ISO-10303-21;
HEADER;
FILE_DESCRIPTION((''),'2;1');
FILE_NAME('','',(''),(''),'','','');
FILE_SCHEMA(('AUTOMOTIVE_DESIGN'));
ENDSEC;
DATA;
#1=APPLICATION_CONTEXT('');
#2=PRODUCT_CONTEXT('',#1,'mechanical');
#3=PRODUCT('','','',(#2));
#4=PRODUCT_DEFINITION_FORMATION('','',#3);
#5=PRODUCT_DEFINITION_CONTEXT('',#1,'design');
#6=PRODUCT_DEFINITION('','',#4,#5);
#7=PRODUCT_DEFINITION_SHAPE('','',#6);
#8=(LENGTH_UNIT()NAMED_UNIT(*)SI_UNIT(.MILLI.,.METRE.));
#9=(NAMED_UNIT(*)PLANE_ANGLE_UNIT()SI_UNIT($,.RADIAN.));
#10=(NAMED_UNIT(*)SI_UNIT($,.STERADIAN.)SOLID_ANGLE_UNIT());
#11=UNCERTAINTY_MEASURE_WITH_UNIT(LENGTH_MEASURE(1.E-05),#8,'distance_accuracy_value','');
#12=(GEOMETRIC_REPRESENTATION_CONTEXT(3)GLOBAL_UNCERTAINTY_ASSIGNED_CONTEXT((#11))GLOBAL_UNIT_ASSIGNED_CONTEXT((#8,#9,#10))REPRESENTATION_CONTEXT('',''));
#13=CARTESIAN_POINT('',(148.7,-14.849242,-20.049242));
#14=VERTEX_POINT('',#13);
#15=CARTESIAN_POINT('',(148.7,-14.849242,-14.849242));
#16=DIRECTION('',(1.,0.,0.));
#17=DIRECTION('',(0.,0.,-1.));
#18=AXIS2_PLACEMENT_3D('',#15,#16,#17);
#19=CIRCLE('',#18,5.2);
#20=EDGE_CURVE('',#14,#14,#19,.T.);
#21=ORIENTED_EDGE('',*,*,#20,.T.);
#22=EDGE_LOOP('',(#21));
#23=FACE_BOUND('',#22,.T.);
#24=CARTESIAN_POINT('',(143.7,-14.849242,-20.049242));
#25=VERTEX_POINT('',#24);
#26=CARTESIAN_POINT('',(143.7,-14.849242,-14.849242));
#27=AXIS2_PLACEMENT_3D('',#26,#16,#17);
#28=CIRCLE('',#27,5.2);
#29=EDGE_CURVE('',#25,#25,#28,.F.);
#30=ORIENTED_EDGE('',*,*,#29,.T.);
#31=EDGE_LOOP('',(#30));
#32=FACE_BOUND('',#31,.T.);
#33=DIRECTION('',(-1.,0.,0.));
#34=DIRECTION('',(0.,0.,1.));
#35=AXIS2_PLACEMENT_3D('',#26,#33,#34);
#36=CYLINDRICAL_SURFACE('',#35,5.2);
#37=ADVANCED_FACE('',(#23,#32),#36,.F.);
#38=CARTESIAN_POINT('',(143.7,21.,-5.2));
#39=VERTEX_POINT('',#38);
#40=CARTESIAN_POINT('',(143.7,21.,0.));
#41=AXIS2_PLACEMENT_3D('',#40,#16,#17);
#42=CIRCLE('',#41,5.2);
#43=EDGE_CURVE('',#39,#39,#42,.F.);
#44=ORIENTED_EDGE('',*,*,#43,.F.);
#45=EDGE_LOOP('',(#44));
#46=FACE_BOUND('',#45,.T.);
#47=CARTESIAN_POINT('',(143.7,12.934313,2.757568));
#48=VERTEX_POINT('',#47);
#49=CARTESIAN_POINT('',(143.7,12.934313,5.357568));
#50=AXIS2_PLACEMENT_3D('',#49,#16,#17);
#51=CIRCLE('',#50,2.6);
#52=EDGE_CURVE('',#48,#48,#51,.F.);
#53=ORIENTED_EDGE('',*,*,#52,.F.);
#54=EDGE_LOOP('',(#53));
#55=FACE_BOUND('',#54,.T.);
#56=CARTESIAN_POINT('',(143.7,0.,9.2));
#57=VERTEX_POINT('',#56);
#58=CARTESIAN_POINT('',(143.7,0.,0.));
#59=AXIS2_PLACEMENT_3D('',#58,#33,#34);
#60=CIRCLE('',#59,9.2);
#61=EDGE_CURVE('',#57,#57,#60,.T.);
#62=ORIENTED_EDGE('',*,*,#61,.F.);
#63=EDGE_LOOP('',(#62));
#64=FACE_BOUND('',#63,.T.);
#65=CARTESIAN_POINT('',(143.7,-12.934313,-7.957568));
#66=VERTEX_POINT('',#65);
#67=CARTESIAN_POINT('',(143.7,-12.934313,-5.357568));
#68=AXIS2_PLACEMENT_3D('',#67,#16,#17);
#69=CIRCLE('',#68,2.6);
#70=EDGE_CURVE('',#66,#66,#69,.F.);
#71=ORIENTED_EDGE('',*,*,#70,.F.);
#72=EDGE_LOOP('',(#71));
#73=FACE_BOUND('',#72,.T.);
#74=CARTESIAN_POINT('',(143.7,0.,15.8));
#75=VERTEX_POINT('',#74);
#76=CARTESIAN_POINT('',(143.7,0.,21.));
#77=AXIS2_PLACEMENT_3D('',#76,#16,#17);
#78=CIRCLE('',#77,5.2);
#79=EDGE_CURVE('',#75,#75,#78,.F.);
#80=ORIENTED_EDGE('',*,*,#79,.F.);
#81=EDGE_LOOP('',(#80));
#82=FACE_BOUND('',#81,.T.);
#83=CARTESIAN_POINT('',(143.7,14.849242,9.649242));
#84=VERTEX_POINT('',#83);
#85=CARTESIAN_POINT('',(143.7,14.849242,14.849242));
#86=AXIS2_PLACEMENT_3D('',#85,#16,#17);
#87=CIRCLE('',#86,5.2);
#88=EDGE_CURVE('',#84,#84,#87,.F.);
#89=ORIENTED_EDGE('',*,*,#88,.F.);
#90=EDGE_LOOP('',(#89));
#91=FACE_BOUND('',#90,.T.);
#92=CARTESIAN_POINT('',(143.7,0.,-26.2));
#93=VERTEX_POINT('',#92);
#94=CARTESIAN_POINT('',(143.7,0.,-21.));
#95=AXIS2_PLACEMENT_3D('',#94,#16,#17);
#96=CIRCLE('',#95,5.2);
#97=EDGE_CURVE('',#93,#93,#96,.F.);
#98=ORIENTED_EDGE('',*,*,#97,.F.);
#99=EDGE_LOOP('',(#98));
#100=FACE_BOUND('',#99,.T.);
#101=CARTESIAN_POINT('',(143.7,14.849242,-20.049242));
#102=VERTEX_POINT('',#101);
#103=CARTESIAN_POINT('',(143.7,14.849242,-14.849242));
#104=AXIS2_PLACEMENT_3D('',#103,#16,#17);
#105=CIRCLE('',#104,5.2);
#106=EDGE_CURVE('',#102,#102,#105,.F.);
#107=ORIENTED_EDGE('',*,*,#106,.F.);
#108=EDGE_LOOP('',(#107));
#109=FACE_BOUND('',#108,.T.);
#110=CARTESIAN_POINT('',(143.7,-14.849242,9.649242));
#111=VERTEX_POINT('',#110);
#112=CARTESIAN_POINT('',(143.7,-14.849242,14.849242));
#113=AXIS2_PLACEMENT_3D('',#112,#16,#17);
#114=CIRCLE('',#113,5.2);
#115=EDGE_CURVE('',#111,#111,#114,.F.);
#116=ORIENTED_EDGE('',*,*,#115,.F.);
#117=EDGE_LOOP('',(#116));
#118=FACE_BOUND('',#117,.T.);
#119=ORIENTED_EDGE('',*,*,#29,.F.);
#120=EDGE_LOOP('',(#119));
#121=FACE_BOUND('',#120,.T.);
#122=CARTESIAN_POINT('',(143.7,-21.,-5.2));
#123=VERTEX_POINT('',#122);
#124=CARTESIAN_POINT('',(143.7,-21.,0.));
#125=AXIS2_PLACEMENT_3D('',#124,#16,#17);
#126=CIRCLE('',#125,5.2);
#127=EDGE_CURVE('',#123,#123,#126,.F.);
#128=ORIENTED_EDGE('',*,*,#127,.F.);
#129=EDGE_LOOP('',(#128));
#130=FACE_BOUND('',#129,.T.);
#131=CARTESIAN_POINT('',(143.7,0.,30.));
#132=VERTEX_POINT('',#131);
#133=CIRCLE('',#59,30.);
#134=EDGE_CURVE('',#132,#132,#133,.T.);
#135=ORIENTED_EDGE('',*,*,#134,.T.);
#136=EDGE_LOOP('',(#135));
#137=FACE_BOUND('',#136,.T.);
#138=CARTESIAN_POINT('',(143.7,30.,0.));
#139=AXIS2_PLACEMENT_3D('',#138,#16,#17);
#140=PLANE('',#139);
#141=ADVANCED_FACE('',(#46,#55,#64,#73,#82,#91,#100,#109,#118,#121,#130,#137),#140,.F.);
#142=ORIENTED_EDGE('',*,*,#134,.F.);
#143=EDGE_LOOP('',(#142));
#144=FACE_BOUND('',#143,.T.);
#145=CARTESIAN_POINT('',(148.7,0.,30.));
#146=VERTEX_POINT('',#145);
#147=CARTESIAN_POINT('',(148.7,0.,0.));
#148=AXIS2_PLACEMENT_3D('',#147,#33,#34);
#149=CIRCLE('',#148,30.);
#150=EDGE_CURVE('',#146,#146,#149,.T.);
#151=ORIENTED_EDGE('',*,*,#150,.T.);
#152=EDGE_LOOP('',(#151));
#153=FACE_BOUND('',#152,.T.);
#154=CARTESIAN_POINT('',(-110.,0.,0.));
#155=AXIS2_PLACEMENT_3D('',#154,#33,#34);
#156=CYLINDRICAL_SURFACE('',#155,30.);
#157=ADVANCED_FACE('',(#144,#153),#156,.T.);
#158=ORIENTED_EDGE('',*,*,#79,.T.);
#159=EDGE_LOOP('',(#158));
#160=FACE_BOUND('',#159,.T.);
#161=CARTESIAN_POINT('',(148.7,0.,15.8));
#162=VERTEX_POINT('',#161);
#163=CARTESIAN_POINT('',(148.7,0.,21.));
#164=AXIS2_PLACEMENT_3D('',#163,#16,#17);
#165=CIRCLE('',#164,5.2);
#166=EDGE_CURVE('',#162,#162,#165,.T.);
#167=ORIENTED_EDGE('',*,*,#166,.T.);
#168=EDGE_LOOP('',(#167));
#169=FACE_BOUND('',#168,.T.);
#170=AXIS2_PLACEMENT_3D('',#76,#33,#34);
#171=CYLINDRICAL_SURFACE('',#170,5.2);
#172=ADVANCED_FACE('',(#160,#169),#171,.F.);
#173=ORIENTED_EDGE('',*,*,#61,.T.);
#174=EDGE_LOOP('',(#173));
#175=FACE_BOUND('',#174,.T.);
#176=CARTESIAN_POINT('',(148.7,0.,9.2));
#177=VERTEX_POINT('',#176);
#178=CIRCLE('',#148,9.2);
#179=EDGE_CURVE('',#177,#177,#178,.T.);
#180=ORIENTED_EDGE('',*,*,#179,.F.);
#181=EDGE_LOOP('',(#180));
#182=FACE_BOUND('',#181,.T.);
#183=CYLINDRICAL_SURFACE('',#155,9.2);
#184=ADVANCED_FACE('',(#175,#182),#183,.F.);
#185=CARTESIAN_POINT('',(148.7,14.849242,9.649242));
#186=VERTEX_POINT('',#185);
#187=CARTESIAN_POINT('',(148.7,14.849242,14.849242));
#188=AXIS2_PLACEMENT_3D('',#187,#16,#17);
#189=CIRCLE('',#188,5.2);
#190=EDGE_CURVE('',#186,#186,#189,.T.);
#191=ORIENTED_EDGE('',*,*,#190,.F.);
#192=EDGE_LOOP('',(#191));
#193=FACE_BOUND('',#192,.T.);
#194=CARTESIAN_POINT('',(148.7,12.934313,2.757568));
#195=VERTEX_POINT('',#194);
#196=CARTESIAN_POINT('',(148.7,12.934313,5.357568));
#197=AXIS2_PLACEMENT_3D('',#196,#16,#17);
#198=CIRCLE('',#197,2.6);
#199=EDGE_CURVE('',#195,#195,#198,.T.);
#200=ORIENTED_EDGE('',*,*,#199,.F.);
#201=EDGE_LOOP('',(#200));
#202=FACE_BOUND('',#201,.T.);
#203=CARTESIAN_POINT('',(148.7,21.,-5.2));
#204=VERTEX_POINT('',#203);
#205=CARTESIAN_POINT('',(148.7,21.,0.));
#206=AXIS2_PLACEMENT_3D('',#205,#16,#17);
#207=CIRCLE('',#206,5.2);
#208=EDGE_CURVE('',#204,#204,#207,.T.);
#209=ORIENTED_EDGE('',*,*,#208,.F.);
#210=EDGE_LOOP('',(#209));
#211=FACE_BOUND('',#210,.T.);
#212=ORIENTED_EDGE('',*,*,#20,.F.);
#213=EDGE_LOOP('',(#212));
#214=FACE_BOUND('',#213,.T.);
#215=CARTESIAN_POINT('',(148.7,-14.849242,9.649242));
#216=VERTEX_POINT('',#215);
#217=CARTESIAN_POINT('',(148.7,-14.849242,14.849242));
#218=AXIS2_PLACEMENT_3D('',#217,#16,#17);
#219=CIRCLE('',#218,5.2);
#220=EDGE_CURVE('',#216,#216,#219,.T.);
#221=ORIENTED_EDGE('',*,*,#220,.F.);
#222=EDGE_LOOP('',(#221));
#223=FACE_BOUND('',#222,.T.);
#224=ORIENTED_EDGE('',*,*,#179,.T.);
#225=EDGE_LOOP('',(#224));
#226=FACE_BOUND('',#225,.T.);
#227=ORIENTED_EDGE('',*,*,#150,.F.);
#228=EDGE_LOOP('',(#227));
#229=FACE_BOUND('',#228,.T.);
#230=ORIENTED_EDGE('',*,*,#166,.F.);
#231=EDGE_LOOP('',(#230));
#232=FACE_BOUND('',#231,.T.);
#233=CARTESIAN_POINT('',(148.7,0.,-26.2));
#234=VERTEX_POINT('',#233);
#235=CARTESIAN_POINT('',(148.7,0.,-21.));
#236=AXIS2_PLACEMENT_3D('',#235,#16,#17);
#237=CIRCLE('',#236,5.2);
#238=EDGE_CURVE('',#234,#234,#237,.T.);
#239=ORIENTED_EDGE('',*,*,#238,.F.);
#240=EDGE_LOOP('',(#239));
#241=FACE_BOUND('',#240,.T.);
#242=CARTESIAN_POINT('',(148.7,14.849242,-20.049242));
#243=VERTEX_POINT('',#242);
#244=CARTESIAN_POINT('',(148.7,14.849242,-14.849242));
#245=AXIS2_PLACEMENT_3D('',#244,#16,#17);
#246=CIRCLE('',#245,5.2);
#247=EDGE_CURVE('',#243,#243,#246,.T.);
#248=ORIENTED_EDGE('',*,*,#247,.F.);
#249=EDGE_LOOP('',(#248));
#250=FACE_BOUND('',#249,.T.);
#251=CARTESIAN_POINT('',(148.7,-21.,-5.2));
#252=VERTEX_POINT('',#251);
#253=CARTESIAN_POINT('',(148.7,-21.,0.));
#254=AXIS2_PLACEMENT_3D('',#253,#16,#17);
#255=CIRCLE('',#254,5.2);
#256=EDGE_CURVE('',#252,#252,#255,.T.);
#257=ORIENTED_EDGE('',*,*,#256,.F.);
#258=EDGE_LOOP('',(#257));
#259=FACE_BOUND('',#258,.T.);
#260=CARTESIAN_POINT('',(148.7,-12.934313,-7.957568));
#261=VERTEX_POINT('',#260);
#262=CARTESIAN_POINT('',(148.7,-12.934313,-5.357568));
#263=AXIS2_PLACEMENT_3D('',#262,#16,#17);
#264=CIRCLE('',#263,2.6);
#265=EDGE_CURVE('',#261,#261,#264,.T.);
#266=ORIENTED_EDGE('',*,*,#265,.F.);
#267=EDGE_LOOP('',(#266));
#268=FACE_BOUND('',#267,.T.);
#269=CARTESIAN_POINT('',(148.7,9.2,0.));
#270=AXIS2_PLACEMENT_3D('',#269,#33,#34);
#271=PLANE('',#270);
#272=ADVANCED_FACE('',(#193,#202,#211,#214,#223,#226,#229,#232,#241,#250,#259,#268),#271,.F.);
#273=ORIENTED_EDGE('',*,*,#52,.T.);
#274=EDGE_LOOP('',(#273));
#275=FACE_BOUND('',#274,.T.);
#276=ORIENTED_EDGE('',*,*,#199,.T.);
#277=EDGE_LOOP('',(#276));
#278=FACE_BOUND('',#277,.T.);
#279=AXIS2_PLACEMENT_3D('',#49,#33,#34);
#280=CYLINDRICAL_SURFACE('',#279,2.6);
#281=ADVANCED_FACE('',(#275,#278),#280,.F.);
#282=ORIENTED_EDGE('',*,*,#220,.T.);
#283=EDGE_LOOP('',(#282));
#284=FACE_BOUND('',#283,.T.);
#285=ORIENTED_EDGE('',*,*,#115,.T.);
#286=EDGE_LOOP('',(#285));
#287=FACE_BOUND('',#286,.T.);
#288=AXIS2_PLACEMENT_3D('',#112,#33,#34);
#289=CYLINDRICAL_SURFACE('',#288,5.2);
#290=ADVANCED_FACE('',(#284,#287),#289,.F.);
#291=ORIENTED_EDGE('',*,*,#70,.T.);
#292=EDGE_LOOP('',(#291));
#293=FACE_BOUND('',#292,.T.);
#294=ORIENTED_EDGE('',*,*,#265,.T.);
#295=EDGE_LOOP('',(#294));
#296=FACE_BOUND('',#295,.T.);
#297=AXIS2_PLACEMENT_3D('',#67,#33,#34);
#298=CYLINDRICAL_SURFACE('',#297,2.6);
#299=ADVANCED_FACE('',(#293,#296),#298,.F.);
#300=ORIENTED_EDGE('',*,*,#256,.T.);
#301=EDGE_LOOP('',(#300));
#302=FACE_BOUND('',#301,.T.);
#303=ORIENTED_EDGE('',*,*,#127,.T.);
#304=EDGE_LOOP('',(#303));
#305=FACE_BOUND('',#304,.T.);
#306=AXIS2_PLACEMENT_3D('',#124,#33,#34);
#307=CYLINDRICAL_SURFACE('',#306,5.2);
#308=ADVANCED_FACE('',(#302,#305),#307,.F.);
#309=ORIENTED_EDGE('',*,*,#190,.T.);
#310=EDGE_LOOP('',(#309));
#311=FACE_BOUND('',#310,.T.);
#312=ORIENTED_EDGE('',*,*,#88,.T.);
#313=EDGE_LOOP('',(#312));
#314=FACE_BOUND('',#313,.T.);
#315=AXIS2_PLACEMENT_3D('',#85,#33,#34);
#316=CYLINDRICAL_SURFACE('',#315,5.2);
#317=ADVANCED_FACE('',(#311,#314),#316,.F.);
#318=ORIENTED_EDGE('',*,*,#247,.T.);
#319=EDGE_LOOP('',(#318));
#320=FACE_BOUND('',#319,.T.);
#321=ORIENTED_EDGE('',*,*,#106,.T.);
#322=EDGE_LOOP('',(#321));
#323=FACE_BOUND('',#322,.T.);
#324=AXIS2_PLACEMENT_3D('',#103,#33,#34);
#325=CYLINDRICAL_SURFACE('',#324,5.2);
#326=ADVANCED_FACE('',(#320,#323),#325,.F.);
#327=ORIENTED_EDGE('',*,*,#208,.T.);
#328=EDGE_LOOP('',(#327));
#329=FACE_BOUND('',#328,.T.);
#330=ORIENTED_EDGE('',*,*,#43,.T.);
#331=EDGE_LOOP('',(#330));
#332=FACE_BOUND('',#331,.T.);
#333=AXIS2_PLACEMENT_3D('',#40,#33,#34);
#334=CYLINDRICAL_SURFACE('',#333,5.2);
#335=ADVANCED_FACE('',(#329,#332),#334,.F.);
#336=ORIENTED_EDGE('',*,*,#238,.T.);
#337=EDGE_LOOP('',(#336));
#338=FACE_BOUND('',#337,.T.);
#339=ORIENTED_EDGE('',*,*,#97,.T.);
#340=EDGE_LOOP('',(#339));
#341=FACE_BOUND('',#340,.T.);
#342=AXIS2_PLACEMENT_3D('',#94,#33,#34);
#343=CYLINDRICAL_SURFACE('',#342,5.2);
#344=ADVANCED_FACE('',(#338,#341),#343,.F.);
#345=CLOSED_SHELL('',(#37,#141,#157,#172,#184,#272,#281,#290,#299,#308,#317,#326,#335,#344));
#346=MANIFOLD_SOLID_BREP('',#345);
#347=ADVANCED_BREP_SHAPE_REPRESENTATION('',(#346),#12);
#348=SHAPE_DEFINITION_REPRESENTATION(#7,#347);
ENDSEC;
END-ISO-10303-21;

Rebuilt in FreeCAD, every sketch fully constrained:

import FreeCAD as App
import Part
import Sketcher
from FreeCAD import Vector


def add_polygon(sketch, points):
    """Adds a closed chain of lines whose ends are joined by coincident constraints."""
    first, n = sketch.GeometryCount, len(points)
    for a, b in zip(points, points[1:] + points[:1]):
        sketch.addGeometry(Part.LineSegment(App.Vector(*a, 0), App.Vector(*b, 0)), False)
    for i in range(n):
        sketch.addConstraint(Sketcher.Constraint("Coincident", first + i, 2, first + (i + 1) % n, 1))

doc = App.newDocument("Part")
body = doc.addObject("PartDesign::Body", "Body")

# Sketch on XY plane
sketch1 = body.newObject("Sketcher::SketchObject", "Sketch")
sketch1.AttachmentSupport = (doc.getObject("XY_Plane"), [""])
sketch1.MapMode = "FlatFace"
add_polygon(sketch1, [(144, 30), (144, 9), (149, 9), (149, 30)])  # lines 0-3
sketch1.addConstraint([
    Sketcher.Constraint("Vertical", 0),
    Sketcher.Constraint("Horizontal", 1),
    Sketcher.Constraint("Vertical", 2),
    Sketcher.Constraint("Horizontal", 3),
    Sketcher.Constraint("DistanceX", 1, 1, 1, 2, 5.0),
    Sketcher.Constraint("DistanceY", 0, 2, 0, 1, 20.8),
    Sketcher.Constraint("DistanceY", -1, 1, 2, 2, 30.0),
    Sketcher.Constraint("DistanceX", -1, 1, 0, 2, 143.7),
])
revolution = body.newObject("PartDesign::Revolution", "Revolution")
revolution.Profile = sketch1
revolution.ReferenceAxis = (sketch1, ["H_Axis"])
revolution.Angle = 360

# Sketch on YZ plane
sketch2 = body.newObject("Sketcher::SketchObject", "Sketch001")
sketch2.AttachmentSupport = (doc.getObject("YZ_Plane"), [""])
sketch2.MapMode = "FlatFace"
sketch2.addGeometry([
    Part.Circle(Vector(21, 0, 0), Vector(0, 0, 1), 5.2),  # 0
    Part.Circle(Vector(14.8, 14.8, 0), Vector(0, 0, 1), 5.2),  # 1
    Part.Circle(Vector(0, 21, 0), Vector(0, 0, 1), 5.2),  # 2
    Part.Circle(Vector(-14.8, 14.8, 0), Vector(0, 0, 1), 5.2),  # 3
    Part.Circle(Vector(-21, 0, 0), Vector(0, 0, 1), 5.2),  # 4
    Part.Circle(Vector(-14.8, -14.8, 0), Vector(0, 0, 1), 5.2),  # 5
    Part.Circle(Vector(0, -21, 0), Vector(0, 0, 1), 5.2),  # 6
    Part.Circle(Vector(14.8, -14.8, 0), Vector(0, 0, 1), 5.2),  # 7
    Part.Circle(Vector(12.9, 5.4, 0), Vector(0, 0, 1), 2.6),  # 8
    Part.Circle(Vector(-12.9, -5.4, 0), Vector(0, 0, 1), 2.6),  # 9
], False)
sketch2.addConstraint([
    Sketcher.Constraint("Equal", 0, 1),
    Sketcher.Constraint("Equal", 1, 2),
    Sketcher.Constraint("Equal", 2, 3),
    Sketcher.Constraint("Equal", 3, 4),
    Sketcher.Constraint("Equal", 4, 5),
    Sketcher.Constraint("Equal", 5, 6),
    Sketcher.Constraint("Equal", 6, 7),
    Sketcher.Constraint("Equal", 8, 9),
    Sketcher.Constraint("Symmetric", 0, 3, 4, 3, -1, 1),
    Sketcher.Constraint("Symmetric", 1, 3, 5, 3, -1, 1),
    Sketcher.Constraint("Symmetric", 2, 3, 6, 3, -1, 1),
    Sketcher.Constraint("Symmetric", 3, 3, 7, 3, -1, 1),
    Sketcher.Constraint("Symmetric", 8, 3, 9, 3, -1, 1),
    Sketcher.Constraint("Symmetric", 1, 3, 3, 3, -2),
    Sketcher.Constraint("PointOnObject", 0, 3, -1),
    Sketcher.Constraint("PointOnObject", 2, 3, -2),
    Sketcher.Constraint("Diameter", 0, 10.4),
    Sketcher.Constraint("Diameter", 8, 5.2),
    Sketcher.Constraint("DistanceX", -1, 1, 0, 3, 21.0),
    Sketcher.Constraint("DistanceY", -1, 1, 2, 3, 21.0),
    Sketcher.Constraint("DistanceY", -1, 1, 8, 3, 5.357568),
    Sketcher.Constraint("DistanceX", 8, 3, 1, 3, 1.914929),
    Sketcher.Constraint("DistanceY", 7, 3, 8, 3, 20.20681),
    Sketcher.Constraint("DistanceX", -1, 1, 1, 3, 14.849242),
])
pocket1 = body.newObject("PartDesign::Pocket", "Pocket")
pocket1.Profile = sketch2
pocket1.Type = "ThroughAll"
pocket1.Midplane = True

doc.recompute()
